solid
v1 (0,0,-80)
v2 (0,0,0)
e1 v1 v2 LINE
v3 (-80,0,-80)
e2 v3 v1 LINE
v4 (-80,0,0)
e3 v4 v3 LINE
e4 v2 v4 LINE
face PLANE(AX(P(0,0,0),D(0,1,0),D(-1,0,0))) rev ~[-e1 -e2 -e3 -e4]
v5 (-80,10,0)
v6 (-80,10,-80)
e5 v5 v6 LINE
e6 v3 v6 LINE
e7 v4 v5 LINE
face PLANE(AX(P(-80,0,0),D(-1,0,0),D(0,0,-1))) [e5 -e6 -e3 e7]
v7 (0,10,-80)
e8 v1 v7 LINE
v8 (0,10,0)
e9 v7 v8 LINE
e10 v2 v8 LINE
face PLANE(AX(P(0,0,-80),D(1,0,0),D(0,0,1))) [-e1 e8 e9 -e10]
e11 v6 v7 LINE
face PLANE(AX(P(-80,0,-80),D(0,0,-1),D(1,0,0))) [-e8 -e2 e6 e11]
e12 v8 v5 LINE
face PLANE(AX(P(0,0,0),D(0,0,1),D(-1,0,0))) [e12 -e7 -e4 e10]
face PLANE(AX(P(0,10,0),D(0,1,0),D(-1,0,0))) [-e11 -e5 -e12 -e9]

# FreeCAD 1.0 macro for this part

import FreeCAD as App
import Part
import Sketcher
from FreeCAD import Vector
Q = App.Units.Quantity

doc = App.newDocument("Part")
params = doc.addObject("Spreadsheet::Sheet", "Params")
for row, (alias, value) in enumerate([
    ("sketch1_width", "80 mm"),
    ("pad1_length", "10 mm"),
], start=1):
    params.set(f"A{row}", alias)
    params.set(f"B{row}", "=" + value)
    params.setAlias(f"B{row}", alias)

body = doc.addObject("PartDesign::Body", "Body")

sketch1 = doc.addObject("Sketcher::SketchObject", "Sketch")
body.addObject(sketch1)
sketch1.AttachmentSupport = (doc.XZ_Plane, [""])
sketch1.MapMode = "FlatFace"
sketch1.addGeometry([
    Part.LineSegment(Vector(-80, 0, 0), Vector(0, 0, 0)),
    Part.LineSegment(Vector(0, 0, 0), Vector(0, -80, 0)),
    Part.LineSegment(Vector(0, -80, 0), Vector(-80, -80, 0)),
    Part.LineSegment(Vector(-80, -80, 0), Vector(-80, 0, 0)),
], False)
sketch1.addConstraint([
    Sketcher.Constraint("Coincident", 0, 2, 1, 1),
    Sketcher.Constraint("Coincident", 1, 2, 2, 1),
    Sketcher.Constraint("Coincident", 2, 2, 3, 1),
    Sketcher.Constraint("Coincident", 3, 2, 0, 1),
    Sketcher.Constraint("Horizontal", 0),
    Sketcher.Constraint("Vertical", 1),
    Sketcher.Constraint("Horizontal", 2),
    Sketcher.Constraint("Vertical", 3),
    Sketcher.Constraint("Coincident", 0, 2, -1, 1),
    Sketcher.Constraint("Equal", 2, 1),
    Sketcher.Constraint("DistanceX", 0, 1, 0, 2, Q("80 mm")),
])
sketch1.setExpression("Constraints[10]", "Params.sketch1_width")
pad1 = doc.addObject("PartDesign::Pad", "Pad")
body.addObject(pad1)
pad1.Profile = sketch1
pad1.setExpression("Length", "Params.pad1_length")
pad1.Reversed = True

doc.recompute()
